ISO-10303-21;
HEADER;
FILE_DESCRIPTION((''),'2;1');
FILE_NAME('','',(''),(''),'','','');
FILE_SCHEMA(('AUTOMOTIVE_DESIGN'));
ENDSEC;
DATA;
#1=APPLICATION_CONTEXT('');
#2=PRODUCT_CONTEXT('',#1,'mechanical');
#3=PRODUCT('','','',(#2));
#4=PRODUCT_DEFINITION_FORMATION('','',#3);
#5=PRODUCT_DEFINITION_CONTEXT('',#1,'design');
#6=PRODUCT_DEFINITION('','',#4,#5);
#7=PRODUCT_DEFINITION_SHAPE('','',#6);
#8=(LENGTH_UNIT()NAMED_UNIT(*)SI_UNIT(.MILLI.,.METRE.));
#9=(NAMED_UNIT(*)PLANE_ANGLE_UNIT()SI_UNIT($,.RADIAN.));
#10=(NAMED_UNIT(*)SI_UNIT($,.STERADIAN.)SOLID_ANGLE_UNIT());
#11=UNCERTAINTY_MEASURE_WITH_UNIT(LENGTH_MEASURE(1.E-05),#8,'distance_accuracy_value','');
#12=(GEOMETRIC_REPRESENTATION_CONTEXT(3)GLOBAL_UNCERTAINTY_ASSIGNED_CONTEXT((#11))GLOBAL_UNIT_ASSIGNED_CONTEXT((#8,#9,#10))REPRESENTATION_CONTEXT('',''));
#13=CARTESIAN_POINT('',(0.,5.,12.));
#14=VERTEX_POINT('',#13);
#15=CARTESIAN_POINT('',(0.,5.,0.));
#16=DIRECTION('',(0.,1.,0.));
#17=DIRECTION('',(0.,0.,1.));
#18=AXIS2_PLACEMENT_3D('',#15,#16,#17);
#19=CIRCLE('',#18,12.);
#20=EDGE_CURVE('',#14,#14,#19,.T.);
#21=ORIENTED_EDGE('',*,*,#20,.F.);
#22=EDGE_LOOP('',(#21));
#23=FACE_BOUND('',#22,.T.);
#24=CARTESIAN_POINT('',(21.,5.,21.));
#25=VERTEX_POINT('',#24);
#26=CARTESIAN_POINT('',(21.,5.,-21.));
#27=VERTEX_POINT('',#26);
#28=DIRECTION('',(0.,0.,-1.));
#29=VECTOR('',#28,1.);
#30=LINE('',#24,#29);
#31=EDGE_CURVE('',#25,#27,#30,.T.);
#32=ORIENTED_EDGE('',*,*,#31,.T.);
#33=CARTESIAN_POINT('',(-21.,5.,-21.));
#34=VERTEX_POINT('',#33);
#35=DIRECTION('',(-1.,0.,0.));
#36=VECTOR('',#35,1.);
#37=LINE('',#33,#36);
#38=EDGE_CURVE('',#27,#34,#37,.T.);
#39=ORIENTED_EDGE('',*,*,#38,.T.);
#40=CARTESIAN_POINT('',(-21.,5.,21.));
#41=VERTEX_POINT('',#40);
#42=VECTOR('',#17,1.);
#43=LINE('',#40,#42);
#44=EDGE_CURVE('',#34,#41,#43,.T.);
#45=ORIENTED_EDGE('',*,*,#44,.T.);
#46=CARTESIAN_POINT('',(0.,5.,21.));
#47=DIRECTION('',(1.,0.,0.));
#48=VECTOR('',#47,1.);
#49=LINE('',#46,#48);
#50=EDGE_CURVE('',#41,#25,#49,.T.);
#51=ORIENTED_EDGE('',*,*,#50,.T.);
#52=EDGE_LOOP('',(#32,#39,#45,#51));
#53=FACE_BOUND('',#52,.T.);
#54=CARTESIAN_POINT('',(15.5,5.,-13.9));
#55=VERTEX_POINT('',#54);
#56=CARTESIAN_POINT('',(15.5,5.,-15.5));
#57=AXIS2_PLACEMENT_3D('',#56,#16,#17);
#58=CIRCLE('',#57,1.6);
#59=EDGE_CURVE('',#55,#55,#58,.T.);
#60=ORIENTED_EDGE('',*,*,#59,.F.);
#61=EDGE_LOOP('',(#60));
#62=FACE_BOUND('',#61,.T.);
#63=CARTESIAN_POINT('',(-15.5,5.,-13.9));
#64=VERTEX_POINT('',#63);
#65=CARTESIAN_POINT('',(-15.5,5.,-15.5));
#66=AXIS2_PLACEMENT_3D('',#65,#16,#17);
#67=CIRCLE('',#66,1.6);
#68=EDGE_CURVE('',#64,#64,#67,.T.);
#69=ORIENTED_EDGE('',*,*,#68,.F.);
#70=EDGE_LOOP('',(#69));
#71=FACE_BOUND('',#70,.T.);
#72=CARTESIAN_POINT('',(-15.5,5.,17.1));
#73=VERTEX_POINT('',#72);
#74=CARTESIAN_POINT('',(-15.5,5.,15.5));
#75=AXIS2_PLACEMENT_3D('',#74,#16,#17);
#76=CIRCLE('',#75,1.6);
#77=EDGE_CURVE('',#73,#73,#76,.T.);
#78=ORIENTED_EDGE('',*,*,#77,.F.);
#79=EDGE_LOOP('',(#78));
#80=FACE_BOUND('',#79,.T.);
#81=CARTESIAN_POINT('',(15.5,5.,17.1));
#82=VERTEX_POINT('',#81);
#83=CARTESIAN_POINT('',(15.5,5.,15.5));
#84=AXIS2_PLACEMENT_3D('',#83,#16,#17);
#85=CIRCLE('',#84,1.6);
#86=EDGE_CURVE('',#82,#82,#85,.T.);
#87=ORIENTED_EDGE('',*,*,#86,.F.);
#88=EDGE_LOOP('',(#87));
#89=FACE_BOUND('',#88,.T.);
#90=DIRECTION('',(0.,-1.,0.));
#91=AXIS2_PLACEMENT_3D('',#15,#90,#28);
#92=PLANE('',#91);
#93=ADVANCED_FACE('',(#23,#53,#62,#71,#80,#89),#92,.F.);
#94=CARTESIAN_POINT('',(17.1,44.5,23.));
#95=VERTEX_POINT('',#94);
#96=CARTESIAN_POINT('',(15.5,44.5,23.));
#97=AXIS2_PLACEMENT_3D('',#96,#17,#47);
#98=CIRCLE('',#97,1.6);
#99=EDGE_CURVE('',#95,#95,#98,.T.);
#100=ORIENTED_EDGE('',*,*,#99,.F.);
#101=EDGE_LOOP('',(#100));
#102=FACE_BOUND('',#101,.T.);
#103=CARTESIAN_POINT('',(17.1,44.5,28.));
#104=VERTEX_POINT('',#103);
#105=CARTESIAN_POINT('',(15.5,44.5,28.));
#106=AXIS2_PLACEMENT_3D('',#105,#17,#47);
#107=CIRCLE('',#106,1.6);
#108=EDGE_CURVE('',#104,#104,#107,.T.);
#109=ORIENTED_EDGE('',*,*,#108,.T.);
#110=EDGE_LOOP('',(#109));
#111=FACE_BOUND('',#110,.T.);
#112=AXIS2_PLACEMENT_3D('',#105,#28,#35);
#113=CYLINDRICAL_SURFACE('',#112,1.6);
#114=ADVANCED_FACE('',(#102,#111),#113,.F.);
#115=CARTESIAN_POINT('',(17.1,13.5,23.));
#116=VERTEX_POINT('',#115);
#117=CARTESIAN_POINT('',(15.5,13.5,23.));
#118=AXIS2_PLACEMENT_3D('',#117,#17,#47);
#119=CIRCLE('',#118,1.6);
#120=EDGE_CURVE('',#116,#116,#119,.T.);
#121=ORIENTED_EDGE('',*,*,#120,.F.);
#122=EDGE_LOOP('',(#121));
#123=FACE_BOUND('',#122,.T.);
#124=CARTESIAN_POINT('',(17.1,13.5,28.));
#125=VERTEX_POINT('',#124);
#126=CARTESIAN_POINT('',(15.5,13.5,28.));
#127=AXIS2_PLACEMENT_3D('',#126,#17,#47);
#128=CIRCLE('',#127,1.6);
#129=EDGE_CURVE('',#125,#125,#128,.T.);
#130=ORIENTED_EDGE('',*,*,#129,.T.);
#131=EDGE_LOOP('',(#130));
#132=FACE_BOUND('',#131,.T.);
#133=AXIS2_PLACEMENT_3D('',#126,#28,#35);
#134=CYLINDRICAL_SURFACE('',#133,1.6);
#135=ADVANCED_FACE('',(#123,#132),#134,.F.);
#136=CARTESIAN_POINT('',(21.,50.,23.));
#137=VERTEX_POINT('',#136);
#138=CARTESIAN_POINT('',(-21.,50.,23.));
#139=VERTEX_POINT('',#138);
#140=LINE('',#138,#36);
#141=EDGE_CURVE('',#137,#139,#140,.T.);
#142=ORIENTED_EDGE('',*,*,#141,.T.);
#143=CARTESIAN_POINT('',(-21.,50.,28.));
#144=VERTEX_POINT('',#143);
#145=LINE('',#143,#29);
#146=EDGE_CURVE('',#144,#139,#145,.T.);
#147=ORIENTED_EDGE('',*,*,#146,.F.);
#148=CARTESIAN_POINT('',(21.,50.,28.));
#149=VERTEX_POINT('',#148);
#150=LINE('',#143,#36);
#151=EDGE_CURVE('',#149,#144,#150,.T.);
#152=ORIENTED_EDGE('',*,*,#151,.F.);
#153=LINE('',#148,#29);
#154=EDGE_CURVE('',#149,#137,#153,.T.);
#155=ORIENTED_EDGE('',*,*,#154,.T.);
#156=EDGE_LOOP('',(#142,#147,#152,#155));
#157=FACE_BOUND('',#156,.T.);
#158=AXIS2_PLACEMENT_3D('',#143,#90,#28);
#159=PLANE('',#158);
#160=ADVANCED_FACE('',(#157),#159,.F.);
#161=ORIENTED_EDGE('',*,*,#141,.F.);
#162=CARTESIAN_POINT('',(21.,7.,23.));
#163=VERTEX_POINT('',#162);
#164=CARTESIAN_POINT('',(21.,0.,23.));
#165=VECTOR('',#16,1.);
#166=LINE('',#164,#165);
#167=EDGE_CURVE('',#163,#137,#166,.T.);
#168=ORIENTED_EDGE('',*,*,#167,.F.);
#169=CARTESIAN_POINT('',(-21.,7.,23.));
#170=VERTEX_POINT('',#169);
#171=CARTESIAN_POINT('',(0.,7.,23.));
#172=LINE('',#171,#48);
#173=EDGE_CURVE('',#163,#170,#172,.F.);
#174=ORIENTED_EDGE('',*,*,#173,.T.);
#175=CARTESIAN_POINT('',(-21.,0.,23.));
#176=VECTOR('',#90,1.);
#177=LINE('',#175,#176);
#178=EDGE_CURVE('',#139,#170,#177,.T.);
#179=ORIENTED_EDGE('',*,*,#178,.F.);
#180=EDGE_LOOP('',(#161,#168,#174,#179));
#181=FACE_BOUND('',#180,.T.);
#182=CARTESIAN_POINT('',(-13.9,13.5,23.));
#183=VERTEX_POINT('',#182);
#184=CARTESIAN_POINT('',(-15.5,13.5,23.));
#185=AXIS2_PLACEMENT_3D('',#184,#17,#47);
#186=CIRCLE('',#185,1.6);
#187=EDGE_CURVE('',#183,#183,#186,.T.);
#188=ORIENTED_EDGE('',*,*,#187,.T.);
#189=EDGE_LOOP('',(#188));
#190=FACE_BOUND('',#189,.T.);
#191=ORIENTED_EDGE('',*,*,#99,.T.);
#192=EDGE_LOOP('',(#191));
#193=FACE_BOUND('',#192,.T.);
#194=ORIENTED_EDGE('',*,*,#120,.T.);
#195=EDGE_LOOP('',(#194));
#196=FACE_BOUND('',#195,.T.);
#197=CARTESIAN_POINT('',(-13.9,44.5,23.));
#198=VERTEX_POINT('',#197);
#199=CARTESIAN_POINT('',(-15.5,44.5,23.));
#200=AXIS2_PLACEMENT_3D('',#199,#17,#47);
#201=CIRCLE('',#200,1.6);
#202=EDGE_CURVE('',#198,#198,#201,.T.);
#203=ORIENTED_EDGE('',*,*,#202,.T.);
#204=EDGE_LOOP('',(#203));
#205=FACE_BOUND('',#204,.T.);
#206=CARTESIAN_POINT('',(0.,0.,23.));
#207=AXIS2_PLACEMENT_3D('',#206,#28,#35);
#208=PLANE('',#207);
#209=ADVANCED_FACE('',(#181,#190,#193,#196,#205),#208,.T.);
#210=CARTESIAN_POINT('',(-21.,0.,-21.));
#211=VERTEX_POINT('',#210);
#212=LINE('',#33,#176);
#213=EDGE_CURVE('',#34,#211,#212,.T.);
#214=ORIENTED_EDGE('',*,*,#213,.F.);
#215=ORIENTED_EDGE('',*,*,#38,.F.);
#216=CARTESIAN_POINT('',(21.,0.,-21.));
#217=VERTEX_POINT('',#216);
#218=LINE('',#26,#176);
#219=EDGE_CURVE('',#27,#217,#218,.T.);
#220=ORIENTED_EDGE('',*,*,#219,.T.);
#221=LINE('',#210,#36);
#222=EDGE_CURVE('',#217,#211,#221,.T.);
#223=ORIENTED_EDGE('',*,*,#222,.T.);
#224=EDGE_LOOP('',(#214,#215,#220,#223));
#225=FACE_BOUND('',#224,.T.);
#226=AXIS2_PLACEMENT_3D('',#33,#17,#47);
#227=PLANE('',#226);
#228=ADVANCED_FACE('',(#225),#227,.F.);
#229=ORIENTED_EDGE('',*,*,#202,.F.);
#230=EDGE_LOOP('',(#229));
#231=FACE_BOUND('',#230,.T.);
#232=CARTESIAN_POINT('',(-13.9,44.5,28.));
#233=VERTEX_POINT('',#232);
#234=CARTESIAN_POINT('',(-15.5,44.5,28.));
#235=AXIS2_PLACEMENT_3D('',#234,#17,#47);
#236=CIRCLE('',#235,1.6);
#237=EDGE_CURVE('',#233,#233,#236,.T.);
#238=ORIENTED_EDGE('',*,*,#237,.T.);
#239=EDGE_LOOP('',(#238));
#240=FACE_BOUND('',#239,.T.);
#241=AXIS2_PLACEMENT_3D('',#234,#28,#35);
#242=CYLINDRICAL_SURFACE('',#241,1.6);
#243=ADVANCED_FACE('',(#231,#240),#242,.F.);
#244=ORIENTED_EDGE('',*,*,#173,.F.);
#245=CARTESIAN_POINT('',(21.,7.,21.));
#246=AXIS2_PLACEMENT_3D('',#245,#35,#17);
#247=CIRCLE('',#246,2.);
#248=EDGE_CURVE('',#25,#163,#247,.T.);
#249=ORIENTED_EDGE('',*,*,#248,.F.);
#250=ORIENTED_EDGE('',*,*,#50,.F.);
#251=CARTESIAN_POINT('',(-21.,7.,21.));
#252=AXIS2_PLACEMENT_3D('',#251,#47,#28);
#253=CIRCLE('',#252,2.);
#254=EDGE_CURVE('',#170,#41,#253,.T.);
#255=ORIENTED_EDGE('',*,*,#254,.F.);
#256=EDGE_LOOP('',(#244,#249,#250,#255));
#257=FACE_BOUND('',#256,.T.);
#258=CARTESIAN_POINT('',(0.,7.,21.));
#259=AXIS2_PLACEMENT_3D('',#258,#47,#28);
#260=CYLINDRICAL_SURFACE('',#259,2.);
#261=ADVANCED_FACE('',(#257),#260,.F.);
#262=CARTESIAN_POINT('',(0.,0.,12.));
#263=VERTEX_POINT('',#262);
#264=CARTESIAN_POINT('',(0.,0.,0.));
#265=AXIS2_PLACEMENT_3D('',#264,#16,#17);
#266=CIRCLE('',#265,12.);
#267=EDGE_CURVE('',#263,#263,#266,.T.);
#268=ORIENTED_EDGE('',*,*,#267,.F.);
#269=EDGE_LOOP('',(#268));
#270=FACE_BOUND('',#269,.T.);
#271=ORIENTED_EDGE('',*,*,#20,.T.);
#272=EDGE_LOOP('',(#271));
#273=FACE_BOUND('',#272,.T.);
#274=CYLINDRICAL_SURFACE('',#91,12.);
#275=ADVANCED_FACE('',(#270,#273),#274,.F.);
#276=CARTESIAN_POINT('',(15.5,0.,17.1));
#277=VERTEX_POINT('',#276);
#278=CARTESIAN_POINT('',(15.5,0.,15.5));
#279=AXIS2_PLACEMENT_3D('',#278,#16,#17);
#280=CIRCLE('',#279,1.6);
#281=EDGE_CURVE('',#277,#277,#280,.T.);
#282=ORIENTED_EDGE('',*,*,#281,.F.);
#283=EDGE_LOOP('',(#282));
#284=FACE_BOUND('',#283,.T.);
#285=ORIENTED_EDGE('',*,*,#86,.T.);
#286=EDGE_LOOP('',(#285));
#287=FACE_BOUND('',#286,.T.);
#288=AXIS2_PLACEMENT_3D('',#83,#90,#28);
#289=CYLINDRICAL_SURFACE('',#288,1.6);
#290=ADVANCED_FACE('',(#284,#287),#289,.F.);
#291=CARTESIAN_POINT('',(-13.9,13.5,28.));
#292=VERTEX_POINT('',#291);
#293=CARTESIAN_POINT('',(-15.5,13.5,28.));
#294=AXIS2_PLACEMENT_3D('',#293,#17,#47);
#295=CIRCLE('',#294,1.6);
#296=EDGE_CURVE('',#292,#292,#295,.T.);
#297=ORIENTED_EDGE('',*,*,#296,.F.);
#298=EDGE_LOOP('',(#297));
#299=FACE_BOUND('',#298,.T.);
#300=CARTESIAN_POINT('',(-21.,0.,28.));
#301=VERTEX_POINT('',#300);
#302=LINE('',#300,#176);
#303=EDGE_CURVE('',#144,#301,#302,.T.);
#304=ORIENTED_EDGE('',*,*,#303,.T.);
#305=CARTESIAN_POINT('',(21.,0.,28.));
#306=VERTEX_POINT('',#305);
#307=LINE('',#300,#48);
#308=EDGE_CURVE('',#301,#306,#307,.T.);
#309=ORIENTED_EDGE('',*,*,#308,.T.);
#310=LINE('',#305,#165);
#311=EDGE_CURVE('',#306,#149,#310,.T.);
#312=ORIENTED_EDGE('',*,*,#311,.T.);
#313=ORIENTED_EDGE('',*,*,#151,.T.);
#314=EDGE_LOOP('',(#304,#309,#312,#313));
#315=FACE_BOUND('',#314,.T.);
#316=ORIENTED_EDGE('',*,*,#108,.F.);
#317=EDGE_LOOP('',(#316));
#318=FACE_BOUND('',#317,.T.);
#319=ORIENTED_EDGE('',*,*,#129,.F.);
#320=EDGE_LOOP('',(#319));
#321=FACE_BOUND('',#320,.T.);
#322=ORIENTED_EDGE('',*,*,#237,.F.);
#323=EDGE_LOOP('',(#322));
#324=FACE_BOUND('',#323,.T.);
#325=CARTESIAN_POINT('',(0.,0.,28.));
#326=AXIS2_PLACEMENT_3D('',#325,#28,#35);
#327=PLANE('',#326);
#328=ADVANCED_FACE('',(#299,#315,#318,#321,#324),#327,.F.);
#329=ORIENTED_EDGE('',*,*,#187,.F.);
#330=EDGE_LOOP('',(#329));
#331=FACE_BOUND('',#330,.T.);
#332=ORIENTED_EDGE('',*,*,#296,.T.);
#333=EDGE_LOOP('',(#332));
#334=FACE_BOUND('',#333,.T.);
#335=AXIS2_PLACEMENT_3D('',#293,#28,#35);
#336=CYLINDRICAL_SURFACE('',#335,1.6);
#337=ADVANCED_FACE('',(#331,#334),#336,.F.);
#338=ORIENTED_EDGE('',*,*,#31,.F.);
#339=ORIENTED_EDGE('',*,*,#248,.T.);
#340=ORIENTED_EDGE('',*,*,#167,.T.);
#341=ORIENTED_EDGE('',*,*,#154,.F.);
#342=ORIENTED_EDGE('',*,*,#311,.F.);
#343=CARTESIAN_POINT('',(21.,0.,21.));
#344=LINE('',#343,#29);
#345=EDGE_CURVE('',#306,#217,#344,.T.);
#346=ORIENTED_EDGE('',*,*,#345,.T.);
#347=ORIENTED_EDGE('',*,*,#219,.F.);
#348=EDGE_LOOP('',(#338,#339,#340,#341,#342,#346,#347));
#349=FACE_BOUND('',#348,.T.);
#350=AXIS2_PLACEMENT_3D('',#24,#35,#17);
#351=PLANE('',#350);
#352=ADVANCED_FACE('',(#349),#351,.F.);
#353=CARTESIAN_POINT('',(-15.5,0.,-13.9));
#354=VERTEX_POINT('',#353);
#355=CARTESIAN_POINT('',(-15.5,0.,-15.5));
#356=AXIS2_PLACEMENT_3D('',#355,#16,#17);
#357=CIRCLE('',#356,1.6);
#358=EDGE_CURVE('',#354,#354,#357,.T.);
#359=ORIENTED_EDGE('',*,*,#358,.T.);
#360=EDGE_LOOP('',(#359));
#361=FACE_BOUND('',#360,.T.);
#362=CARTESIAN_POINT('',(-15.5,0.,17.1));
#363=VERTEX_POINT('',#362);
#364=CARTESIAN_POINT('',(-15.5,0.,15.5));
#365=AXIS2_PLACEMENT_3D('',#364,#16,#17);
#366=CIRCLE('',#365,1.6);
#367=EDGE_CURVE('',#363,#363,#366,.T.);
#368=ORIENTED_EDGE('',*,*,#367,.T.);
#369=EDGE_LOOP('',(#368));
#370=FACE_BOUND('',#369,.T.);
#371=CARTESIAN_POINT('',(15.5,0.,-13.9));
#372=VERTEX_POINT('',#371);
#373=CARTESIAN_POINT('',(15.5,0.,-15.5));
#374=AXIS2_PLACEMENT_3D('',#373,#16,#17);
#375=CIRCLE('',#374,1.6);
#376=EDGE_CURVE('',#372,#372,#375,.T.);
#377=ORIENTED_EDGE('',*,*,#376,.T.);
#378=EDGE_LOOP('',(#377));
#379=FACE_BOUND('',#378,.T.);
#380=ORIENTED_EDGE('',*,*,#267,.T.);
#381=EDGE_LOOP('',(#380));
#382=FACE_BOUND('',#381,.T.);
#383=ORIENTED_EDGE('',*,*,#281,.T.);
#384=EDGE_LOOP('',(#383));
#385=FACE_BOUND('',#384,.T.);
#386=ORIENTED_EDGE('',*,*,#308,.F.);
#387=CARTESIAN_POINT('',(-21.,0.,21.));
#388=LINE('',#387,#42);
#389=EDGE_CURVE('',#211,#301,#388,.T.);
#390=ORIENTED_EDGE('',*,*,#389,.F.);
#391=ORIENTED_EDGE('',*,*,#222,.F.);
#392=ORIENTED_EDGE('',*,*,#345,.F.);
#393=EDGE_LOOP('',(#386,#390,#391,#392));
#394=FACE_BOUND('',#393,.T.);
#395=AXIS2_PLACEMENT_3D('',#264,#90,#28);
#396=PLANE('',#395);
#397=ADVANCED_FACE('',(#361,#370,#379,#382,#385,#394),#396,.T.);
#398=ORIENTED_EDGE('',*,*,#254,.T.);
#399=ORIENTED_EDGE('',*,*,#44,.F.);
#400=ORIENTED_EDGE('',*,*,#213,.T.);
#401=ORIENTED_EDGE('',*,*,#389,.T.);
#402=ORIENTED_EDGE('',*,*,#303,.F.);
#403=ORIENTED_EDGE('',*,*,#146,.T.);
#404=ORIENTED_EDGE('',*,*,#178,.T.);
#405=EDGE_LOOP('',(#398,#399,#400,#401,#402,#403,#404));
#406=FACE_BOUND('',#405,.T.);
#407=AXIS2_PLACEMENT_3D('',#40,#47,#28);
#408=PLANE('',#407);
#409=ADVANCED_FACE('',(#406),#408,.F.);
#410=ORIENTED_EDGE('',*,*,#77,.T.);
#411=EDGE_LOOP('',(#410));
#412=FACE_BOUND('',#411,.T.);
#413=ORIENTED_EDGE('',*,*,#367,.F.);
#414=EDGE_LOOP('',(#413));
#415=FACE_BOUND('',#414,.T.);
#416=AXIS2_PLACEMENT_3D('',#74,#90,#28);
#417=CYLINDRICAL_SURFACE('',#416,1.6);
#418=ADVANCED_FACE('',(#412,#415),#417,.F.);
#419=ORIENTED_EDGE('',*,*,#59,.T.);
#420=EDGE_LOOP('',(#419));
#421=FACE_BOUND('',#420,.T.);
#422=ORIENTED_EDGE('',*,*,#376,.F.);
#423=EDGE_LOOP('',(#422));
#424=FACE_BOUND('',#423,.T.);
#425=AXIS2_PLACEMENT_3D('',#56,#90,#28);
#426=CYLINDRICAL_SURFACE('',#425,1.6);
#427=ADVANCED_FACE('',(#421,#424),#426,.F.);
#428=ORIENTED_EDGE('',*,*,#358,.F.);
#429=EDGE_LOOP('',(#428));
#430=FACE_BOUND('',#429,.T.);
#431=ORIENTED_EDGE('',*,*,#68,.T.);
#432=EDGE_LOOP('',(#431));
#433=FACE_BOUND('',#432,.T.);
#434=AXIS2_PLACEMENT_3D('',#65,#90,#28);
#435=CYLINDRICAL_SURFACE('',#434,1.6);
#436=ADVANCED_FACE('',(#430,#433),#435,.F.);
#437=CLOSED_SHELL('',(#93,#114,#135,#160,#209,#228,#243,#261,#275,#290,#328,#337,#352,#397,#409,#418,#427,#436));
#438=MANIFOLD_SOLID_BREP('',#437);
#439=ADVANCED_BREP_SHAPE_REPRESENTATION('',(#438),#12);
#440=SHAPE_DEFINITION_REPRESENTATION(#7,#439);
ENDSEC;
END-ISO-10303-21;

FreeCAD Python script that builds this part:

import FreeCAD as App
import Part
import Sketcher
Q = App.Units.Quantity


def edges_at(feature, points):
    """Names of the edges that pass closest to the given points."""
    edges = feature.Shape.Edges
    near = lambda p: min(range(len(edges)), key=lambda i: edges[i].distToShape(Part.Vertex(*p))[0])
    return sorted({f"Edge{near(p) + 1}" for p in points})


def add_polygon(sketch, points):
    """Adds a closed chain of lines whose ends are joined by coincident constraints."""
    first, n = sketch.GeometryCount, len(points)
    for a, b in zip(points, points[1:] + points[:1]):
        sketch.addGeometry(Part.LineSegment(App.Vector(*a, 0), App.Vector(*b, 0)), False)
    for i in range(n):
        sketch.addConstraint(Sketcher.Constraint("Coincident", first + i, 2, first + (i + 1) % n, 1))

doc = App.newDocument("Part")
body = doc.addObject("PartDesign::Body", "Body")

# Sketch on XZ plane
sketch1 = body.newObject("Sketcher::SketchObject", "Sketch")
sketch1.AttachmentSupport = (doc.getObject("XZ_Plane"), [""])
sketch1.MapMode = "FlatFace"
add_polygon(sketch1, [(-21, -21), (-21, 23), (21, 23), (21, -21)])  # lines 0-3
sketch1.addGeometry(Part.Circle(App.Vector(15.5, 15.5, 0), App.Vector(0, 0, 1), 1.6), False)  # 4
sketch1.addGeometry(Part.Circle(App.Vector(-15.5, 15.5, 0), App.Vector(0, 0, 1), 1.6), False)  # 5
sketch1.addGeometry(Part.Circle(App.Vector(15.5, -15.5, 0), App.Vector(0, 0, 1), 1.6), False)  # 6
sketch1.addGeometry(Part.Circle(App.Vector(0, 0, 0), App.Vector(0, 0, 1), 12), False)  # 7
sketch1.addGeometry(Part.Circle(App.Vector(-15.5, -15.5, 0), App.Vector(0, 0, 1), 1.6), False)  # 8
sketch1.addConstraint([
    Sketcher.Constraint("Vertical", 0),
    Sketcher.Constraint("Horizontal", 1),
    Sketcher.Constraint("Vertical", 2),
    Sketcher.Constraint("Horizontal", 3),
    Sketcher.Constraint("Coincident", 7, 3, -1, 1),
    Sketcher.Constraint("Equal", 4, 5),
    Sketcher.Constraint("Equal", 5, 6),
    Sketcher.Constraint("Equal", 6, 8),
    Sketcher.Constraint("Symmetric", 5, 3, 6, 3, -1, 1),
    Sketcher.Constraint("Symmetric", 4, 3, 8, 3, -1, 1),
    Sketcher.Constraint("Symmetric", 4, 3, 5, 3, -2),
    Sketcher.Constraint("Diameter", 7, Q("24 mm")),
    Sketcher.Constraint("Diameter", 4, Q("3.2 mm")),
    Sketcher.Constraint("DistanceX", 1, 1, 1, 2, Q("42 mm")),
    Sketcher.Constraint("DistanceY", 0, 1, 0, 2, Q("44 mm")),
    Sketcher.Constraint("DistanceX", 0, 2, -1, 1, Q("21 mm")),
    Sketcher.Constraint("DistanceY", -1, 1, 0, 2, Q("23 mm")),
    Sketcher.Constraint("DistanceX", 5, 3, 4, 3, Q("31 mm")),
    Sketcher.Constraint("DistanceY", 6, 3, 4, 3, Q("31 mm")),
])
pad1 = body.newObject("PartDesign::Pad", "Pad")
pad1.Profile = sketch1
pad1.Length = 5
pad1.Reversed = True

# Sketch on XY plane
sketch2 = body.newObject("Sketcher::SketchObject", "Sketch001")
sketch2.AttachmentSupport = (doc.getObject("XY_Plane"), [""])
sketch2.MapMode = "FlatFace"
sketch2.AttachmentOffset = App.Placement(App.Vector(0, 0, 23), App.Rotation())
add_polygon(sketch2, [(-21, 50), (-21, 0), (21, 0), (21, 50)])  # lines 0-3
sketch2.addGeometry(Part.Circle(App.Vector(-15.5, 13.5, 0), App.Vector(0, 0, 1), 1.6), False)  # 4
sketch2.addGeometry(Part.Circle(App.Vector(15.5, 13.5, 0), App.Vector(0, 0, 1), 1.6), False)  # 5
sketch2.addGeometry(Part.Circle(App.Vector(-15.5, 44.5, 0), App.Vector(0, 0, 1), 1.6), False)  # 6
sketch2.addGeometry(Part.Circle(App.Vector(15.5, 44.5, 0), App.Vector(0, 0, 1), 1.6), False)  # 7
sketch2.addConstraint([
    Sketcher.Constraint("Vertical", 0),
    Sketcher.Constraint("Horizontal", 1),
    Sketcher.Constraint("Vertical", 2),
    Sketcher.Constraint("Horizontal", 3),
    Sketcher.Constraint("Equal", 4, 5),
    Sketcher.Constraint("Equal", 5, 6),
    Sketcher.Constraint("Equal", 6, 7),
    Sketcher.Constraint("Symmetric", 0, 2, 1, 2, -1, 1),
    Sketcher.Constraint("Symmetric", 4, 3, 5, 3, -2),
    Sketcher.Constraint("Symmetric", 6, 3, 7, 3, -2),
    Sketcher.Constraint("Vertical", 4, 3, 6, 3),
    Sketcher.Constraint("Diameter", 4, Q("3.2 mm")),
    Sketcher.Constraint("DistanceX", 1, 1, 1, 2, Q("42 mm")),
    Sketcher.Constraint("DistanceY", 0, 2, 0, 1, Q("50 mm")),
    Sketcher.Constraint("DistanceX", 4, 3, 5, 3, Q("31 mm")),
    Sketcher.Constraint("DistanceY", 4, 3, 6, 3, Q("31 mm")),
    Sketcher.Constraint("DistanceY", -1, 1, 4, 3, Q("13.5 mm")),
])
pad2 = body.newObject("PartDesign::Pad", "Pad001")
pad2.Profile = sketch2
pad2.Length = 5
doc.recompute()

fillet = body.newObject("PartDesign::Fillet", "Fillet")
fillet.Base = (pad2, edges_at(pad2, [(0, 5, 23)]))
fillet.Radius = 2

doc.recompute()
